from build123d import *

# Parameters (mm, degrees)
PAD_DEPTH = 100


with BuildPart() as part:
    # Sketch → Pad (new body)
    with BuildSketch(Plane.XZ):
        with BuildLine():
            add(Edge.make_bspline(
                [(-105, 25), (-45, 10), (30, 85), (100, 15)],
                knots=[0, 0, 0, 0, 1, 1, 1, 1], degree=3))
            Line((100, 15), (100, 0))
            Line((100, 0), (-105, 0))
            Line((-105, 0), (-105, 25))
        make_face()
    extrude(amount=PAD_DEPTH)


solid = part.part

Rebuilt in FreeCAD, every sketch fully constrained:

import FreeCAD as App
import Part
import Sketcher
from FreeCAD import Vector

doc = App.newDocument("Part")
body = doc.addObject("PartDesign::Body", "Body")

# Sketch on XZ plane
sketch1 = body.newObject("Sketcher::SketchObject", "Sketch")
sketch1.AttachmentSupport = (doc.getObject("XZ_Plane"), [""])
sketch1.MapMode = "FlatFace"
sketch1.addGeometry(Part.BSplineCurve([Vector(-105, 25, 0), Vector(-45, 10, 0), Vector(30, 85, 0), Vector(100, 15, 0)], [4, 4], [0, 1], False, 3, [1, 1, 1, 1], False), False)
sketch1.addGeometry(Part.LineSegment(Vector(-105, 25, 0), Vector(-105, 0, 0)), False)
sketch1.addGeometry(Part.LineSegment(Vector(-105, 0, 0), Vector(100, 0, 0)), False)
sketch1.addGeometry(Part.LineSegment(Vector(100, 0, 0), Vector(100, 15, 0)), False)
sketch1.addConstraint(Sketcher.Constraint("Block", 0))
sketch1.addConstraint(Sketcher.Constraint("Coincident", 0, 1, 1, 1))
sketch1.addConstraint(Sketcher.Constraint("Coincident", 1, 2, 2, 1))
sketch1.addConstraint(Sketcher.Constraint("Coincident", 2, 2, 3, 1))
sketch1.addConstraint(Sketcher.Constraint("Coincident", 3, 2, 0, 2))
sketch1.addConstraint(Sketcher.Constraint("Vertical", 1))
sketch1.addConstraint(Sketcher.Constraint("Horizontal", 2))
sketch1.addConstraint(Sketcher.Constraint("Vertical", 3))
sketch1.addConstraint(Sketcher.Constraint("PointOnObject", 1, 2, -1))
pad1 = body.newObject("PartDesign::Pad", "Pad")
pad1.Profile = sketch1
pad1.Length = 100

doc.recompute()
